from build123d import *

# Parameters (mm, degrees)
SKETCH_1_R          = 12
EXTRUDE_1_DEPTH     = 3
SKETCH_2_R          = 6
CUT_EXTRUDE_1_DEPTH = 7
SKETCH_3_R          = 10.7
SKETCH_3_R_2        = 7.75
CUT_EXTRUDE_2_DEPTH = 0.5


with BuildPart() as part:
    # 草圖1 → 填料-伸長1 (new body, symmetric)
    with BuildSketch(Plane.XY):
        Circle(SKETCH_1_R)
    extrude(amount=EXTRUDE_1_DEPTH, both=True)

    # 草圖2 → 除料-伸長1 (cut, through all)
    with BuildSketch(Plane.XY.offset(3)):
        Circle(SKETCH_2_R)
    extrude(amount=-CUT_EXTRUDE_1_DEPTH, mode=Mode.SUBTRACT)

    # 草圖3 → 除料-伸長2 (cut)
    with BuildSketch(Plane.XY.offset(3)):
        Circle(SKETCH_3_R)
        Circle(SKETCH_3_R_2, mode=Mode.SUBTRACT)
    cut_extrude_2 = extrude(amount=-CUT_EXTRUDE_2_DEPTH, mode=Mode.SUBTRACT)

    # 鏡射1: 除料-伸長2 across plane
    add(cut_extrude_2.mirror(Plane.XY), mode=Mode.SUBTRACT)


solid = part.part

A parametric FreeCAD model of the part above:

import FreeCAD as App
import Part
import Sketcher
from FreeCAD import Vector
Q = App.Units.Quantity

doc = App.newDocument("Part")
params = doc.addObject("Spreadsheet::Sheet", "Params")
for row, (alias, value) in enumerate([
    ("sketch1_diameter", "24 mm"),
    ("pad1_length", "6 mm"),
    ("sketch2_diameter", "12 mm"),
    ("sketch3_diameter", "21.4 mm"),
    ("sketch3_diameter2", "15.5 mm"),
    ("pocket2_length", "0.5 mm"),
], start=1):
    params.set(f"A{row}", alias)
    params.set(f"B{row}", "=" + value)
    params.setAlias(f"B{row}", alias)

body = doc.addObject("PartDesign::Body", "Body")

sketch1 = doc.addObject("Sketcher::SketchObject", "Sketch")
body.addObject(sketch1)
sketch1.AttachmentSupport = (doc.XY_Plane, [""])
sketch1.MapMode = "FlatFace"
sketch1.addGeometry(Part.Circle(Vector(0, 0, 0), Vector(0, 0, 1), 12), False)
sketch1.addConstraint(Sketcher.Constraint("Coincident", 0, 3, -1, 1))
sketch1.addConstraint(Sketcher.Constraint("Diameter", 0, Q("24 mm")))
sketch1.setExpression("Constraints[1]", "Params.sketch1_diameter")
pad1 = doc.addObject("PartDesign::Pad", "Pad")
body.addObject(pad1)
pad1.Profile = sketch1
pad1.setExpression("Length", "Params.pad1_length")
pad1.Midplane = True

sketch2 = doc.addObject("Sketcher::SketchObject", "Sketch001")
body.addObject(sketch2)
sketch2.AttachmentSupport = (doc.XY_Plane, [""])
sketch2.MapMode = "FlatFace"
sketch2.AttachmentOffset = App.Placement(Vector(0, 0, 3), App.Rotation())
sketch2.addGeometry(Part.Circle(Vector(0, 0, 0), Vector(0, 0, 1), 6), False)
sketch2.addConstraint(Sketcher.Constraint("Coincident", 0, 3, -1, 1))
sketch2.addConstraint(Sketcher.Constraint("Diameter", 0, Q("12 mm")))
sketch2.setExpression("Constraints[1]", "Params.sketch2_diameter")
pocket1 = doc.addObject("PartDesign::Pocket", "Pocket")
body.addObject(pocket1)
pocket1.Profile = sketch2
pocket1.Type = "ThroughAll"

sketch3 = doc.addObject("Sketcher::SketchObject", "Sketch002")
body.addObject(sketch3)
sketch3.AttachmentSupport = (doc.XY_Plane, [""])
sketch3.MapMode = "FlatFace"
sketch3.AttachmentOffset = App.Placement(Vector(0, 0, 3), App.Rotation())
sketch3.addGeometry(Part.Circle(Vector(0, 0, 0), Vector(0, 0, 1), 11), False)
sketch3.addGeometry(Part.Circle(Vector(0, 0, 0), Vector(0, 0, 1), 8), False)
sketch3.addConstraint(Sketcher.Constraint("Coincident", 0, 3, -1, 1))
sketch3.addConstraint(Sketcher.Constraint("Coincident", 1, 3, -1, 1))
sketch3.addConstraint(Sketcher.Constraint("Diameter", 0, Q("21.4 mm")))
sketch3.addConstraint(Sketcher.Constraint("Diameter", 1, Q("15.5 mm")))
sketch3.setExpression("Constraints[2]", "Params.sketch3_diameter")
sketch3.setExpression("Constraints[3]", "Params.sketch3_diameter2")
pocket2 = doc.addObject("PartDesign::Pocket", "Pocket001")
body.addObject(pocket2)
pocket2.Profile = sketch3
pocket2.setExpression("Length", "Params.pocket2_length")
doc.recompute()

mirrored = doc.addObject("PartDesign::Mirrored", "Mirrored")
body.addObject(mirrored)
mirrored.Originals = [pocket2]
mirrored.MirrorPlane = (doc.XY_Plane, [""])
body.Tip = mirrored

doc.recompute()
